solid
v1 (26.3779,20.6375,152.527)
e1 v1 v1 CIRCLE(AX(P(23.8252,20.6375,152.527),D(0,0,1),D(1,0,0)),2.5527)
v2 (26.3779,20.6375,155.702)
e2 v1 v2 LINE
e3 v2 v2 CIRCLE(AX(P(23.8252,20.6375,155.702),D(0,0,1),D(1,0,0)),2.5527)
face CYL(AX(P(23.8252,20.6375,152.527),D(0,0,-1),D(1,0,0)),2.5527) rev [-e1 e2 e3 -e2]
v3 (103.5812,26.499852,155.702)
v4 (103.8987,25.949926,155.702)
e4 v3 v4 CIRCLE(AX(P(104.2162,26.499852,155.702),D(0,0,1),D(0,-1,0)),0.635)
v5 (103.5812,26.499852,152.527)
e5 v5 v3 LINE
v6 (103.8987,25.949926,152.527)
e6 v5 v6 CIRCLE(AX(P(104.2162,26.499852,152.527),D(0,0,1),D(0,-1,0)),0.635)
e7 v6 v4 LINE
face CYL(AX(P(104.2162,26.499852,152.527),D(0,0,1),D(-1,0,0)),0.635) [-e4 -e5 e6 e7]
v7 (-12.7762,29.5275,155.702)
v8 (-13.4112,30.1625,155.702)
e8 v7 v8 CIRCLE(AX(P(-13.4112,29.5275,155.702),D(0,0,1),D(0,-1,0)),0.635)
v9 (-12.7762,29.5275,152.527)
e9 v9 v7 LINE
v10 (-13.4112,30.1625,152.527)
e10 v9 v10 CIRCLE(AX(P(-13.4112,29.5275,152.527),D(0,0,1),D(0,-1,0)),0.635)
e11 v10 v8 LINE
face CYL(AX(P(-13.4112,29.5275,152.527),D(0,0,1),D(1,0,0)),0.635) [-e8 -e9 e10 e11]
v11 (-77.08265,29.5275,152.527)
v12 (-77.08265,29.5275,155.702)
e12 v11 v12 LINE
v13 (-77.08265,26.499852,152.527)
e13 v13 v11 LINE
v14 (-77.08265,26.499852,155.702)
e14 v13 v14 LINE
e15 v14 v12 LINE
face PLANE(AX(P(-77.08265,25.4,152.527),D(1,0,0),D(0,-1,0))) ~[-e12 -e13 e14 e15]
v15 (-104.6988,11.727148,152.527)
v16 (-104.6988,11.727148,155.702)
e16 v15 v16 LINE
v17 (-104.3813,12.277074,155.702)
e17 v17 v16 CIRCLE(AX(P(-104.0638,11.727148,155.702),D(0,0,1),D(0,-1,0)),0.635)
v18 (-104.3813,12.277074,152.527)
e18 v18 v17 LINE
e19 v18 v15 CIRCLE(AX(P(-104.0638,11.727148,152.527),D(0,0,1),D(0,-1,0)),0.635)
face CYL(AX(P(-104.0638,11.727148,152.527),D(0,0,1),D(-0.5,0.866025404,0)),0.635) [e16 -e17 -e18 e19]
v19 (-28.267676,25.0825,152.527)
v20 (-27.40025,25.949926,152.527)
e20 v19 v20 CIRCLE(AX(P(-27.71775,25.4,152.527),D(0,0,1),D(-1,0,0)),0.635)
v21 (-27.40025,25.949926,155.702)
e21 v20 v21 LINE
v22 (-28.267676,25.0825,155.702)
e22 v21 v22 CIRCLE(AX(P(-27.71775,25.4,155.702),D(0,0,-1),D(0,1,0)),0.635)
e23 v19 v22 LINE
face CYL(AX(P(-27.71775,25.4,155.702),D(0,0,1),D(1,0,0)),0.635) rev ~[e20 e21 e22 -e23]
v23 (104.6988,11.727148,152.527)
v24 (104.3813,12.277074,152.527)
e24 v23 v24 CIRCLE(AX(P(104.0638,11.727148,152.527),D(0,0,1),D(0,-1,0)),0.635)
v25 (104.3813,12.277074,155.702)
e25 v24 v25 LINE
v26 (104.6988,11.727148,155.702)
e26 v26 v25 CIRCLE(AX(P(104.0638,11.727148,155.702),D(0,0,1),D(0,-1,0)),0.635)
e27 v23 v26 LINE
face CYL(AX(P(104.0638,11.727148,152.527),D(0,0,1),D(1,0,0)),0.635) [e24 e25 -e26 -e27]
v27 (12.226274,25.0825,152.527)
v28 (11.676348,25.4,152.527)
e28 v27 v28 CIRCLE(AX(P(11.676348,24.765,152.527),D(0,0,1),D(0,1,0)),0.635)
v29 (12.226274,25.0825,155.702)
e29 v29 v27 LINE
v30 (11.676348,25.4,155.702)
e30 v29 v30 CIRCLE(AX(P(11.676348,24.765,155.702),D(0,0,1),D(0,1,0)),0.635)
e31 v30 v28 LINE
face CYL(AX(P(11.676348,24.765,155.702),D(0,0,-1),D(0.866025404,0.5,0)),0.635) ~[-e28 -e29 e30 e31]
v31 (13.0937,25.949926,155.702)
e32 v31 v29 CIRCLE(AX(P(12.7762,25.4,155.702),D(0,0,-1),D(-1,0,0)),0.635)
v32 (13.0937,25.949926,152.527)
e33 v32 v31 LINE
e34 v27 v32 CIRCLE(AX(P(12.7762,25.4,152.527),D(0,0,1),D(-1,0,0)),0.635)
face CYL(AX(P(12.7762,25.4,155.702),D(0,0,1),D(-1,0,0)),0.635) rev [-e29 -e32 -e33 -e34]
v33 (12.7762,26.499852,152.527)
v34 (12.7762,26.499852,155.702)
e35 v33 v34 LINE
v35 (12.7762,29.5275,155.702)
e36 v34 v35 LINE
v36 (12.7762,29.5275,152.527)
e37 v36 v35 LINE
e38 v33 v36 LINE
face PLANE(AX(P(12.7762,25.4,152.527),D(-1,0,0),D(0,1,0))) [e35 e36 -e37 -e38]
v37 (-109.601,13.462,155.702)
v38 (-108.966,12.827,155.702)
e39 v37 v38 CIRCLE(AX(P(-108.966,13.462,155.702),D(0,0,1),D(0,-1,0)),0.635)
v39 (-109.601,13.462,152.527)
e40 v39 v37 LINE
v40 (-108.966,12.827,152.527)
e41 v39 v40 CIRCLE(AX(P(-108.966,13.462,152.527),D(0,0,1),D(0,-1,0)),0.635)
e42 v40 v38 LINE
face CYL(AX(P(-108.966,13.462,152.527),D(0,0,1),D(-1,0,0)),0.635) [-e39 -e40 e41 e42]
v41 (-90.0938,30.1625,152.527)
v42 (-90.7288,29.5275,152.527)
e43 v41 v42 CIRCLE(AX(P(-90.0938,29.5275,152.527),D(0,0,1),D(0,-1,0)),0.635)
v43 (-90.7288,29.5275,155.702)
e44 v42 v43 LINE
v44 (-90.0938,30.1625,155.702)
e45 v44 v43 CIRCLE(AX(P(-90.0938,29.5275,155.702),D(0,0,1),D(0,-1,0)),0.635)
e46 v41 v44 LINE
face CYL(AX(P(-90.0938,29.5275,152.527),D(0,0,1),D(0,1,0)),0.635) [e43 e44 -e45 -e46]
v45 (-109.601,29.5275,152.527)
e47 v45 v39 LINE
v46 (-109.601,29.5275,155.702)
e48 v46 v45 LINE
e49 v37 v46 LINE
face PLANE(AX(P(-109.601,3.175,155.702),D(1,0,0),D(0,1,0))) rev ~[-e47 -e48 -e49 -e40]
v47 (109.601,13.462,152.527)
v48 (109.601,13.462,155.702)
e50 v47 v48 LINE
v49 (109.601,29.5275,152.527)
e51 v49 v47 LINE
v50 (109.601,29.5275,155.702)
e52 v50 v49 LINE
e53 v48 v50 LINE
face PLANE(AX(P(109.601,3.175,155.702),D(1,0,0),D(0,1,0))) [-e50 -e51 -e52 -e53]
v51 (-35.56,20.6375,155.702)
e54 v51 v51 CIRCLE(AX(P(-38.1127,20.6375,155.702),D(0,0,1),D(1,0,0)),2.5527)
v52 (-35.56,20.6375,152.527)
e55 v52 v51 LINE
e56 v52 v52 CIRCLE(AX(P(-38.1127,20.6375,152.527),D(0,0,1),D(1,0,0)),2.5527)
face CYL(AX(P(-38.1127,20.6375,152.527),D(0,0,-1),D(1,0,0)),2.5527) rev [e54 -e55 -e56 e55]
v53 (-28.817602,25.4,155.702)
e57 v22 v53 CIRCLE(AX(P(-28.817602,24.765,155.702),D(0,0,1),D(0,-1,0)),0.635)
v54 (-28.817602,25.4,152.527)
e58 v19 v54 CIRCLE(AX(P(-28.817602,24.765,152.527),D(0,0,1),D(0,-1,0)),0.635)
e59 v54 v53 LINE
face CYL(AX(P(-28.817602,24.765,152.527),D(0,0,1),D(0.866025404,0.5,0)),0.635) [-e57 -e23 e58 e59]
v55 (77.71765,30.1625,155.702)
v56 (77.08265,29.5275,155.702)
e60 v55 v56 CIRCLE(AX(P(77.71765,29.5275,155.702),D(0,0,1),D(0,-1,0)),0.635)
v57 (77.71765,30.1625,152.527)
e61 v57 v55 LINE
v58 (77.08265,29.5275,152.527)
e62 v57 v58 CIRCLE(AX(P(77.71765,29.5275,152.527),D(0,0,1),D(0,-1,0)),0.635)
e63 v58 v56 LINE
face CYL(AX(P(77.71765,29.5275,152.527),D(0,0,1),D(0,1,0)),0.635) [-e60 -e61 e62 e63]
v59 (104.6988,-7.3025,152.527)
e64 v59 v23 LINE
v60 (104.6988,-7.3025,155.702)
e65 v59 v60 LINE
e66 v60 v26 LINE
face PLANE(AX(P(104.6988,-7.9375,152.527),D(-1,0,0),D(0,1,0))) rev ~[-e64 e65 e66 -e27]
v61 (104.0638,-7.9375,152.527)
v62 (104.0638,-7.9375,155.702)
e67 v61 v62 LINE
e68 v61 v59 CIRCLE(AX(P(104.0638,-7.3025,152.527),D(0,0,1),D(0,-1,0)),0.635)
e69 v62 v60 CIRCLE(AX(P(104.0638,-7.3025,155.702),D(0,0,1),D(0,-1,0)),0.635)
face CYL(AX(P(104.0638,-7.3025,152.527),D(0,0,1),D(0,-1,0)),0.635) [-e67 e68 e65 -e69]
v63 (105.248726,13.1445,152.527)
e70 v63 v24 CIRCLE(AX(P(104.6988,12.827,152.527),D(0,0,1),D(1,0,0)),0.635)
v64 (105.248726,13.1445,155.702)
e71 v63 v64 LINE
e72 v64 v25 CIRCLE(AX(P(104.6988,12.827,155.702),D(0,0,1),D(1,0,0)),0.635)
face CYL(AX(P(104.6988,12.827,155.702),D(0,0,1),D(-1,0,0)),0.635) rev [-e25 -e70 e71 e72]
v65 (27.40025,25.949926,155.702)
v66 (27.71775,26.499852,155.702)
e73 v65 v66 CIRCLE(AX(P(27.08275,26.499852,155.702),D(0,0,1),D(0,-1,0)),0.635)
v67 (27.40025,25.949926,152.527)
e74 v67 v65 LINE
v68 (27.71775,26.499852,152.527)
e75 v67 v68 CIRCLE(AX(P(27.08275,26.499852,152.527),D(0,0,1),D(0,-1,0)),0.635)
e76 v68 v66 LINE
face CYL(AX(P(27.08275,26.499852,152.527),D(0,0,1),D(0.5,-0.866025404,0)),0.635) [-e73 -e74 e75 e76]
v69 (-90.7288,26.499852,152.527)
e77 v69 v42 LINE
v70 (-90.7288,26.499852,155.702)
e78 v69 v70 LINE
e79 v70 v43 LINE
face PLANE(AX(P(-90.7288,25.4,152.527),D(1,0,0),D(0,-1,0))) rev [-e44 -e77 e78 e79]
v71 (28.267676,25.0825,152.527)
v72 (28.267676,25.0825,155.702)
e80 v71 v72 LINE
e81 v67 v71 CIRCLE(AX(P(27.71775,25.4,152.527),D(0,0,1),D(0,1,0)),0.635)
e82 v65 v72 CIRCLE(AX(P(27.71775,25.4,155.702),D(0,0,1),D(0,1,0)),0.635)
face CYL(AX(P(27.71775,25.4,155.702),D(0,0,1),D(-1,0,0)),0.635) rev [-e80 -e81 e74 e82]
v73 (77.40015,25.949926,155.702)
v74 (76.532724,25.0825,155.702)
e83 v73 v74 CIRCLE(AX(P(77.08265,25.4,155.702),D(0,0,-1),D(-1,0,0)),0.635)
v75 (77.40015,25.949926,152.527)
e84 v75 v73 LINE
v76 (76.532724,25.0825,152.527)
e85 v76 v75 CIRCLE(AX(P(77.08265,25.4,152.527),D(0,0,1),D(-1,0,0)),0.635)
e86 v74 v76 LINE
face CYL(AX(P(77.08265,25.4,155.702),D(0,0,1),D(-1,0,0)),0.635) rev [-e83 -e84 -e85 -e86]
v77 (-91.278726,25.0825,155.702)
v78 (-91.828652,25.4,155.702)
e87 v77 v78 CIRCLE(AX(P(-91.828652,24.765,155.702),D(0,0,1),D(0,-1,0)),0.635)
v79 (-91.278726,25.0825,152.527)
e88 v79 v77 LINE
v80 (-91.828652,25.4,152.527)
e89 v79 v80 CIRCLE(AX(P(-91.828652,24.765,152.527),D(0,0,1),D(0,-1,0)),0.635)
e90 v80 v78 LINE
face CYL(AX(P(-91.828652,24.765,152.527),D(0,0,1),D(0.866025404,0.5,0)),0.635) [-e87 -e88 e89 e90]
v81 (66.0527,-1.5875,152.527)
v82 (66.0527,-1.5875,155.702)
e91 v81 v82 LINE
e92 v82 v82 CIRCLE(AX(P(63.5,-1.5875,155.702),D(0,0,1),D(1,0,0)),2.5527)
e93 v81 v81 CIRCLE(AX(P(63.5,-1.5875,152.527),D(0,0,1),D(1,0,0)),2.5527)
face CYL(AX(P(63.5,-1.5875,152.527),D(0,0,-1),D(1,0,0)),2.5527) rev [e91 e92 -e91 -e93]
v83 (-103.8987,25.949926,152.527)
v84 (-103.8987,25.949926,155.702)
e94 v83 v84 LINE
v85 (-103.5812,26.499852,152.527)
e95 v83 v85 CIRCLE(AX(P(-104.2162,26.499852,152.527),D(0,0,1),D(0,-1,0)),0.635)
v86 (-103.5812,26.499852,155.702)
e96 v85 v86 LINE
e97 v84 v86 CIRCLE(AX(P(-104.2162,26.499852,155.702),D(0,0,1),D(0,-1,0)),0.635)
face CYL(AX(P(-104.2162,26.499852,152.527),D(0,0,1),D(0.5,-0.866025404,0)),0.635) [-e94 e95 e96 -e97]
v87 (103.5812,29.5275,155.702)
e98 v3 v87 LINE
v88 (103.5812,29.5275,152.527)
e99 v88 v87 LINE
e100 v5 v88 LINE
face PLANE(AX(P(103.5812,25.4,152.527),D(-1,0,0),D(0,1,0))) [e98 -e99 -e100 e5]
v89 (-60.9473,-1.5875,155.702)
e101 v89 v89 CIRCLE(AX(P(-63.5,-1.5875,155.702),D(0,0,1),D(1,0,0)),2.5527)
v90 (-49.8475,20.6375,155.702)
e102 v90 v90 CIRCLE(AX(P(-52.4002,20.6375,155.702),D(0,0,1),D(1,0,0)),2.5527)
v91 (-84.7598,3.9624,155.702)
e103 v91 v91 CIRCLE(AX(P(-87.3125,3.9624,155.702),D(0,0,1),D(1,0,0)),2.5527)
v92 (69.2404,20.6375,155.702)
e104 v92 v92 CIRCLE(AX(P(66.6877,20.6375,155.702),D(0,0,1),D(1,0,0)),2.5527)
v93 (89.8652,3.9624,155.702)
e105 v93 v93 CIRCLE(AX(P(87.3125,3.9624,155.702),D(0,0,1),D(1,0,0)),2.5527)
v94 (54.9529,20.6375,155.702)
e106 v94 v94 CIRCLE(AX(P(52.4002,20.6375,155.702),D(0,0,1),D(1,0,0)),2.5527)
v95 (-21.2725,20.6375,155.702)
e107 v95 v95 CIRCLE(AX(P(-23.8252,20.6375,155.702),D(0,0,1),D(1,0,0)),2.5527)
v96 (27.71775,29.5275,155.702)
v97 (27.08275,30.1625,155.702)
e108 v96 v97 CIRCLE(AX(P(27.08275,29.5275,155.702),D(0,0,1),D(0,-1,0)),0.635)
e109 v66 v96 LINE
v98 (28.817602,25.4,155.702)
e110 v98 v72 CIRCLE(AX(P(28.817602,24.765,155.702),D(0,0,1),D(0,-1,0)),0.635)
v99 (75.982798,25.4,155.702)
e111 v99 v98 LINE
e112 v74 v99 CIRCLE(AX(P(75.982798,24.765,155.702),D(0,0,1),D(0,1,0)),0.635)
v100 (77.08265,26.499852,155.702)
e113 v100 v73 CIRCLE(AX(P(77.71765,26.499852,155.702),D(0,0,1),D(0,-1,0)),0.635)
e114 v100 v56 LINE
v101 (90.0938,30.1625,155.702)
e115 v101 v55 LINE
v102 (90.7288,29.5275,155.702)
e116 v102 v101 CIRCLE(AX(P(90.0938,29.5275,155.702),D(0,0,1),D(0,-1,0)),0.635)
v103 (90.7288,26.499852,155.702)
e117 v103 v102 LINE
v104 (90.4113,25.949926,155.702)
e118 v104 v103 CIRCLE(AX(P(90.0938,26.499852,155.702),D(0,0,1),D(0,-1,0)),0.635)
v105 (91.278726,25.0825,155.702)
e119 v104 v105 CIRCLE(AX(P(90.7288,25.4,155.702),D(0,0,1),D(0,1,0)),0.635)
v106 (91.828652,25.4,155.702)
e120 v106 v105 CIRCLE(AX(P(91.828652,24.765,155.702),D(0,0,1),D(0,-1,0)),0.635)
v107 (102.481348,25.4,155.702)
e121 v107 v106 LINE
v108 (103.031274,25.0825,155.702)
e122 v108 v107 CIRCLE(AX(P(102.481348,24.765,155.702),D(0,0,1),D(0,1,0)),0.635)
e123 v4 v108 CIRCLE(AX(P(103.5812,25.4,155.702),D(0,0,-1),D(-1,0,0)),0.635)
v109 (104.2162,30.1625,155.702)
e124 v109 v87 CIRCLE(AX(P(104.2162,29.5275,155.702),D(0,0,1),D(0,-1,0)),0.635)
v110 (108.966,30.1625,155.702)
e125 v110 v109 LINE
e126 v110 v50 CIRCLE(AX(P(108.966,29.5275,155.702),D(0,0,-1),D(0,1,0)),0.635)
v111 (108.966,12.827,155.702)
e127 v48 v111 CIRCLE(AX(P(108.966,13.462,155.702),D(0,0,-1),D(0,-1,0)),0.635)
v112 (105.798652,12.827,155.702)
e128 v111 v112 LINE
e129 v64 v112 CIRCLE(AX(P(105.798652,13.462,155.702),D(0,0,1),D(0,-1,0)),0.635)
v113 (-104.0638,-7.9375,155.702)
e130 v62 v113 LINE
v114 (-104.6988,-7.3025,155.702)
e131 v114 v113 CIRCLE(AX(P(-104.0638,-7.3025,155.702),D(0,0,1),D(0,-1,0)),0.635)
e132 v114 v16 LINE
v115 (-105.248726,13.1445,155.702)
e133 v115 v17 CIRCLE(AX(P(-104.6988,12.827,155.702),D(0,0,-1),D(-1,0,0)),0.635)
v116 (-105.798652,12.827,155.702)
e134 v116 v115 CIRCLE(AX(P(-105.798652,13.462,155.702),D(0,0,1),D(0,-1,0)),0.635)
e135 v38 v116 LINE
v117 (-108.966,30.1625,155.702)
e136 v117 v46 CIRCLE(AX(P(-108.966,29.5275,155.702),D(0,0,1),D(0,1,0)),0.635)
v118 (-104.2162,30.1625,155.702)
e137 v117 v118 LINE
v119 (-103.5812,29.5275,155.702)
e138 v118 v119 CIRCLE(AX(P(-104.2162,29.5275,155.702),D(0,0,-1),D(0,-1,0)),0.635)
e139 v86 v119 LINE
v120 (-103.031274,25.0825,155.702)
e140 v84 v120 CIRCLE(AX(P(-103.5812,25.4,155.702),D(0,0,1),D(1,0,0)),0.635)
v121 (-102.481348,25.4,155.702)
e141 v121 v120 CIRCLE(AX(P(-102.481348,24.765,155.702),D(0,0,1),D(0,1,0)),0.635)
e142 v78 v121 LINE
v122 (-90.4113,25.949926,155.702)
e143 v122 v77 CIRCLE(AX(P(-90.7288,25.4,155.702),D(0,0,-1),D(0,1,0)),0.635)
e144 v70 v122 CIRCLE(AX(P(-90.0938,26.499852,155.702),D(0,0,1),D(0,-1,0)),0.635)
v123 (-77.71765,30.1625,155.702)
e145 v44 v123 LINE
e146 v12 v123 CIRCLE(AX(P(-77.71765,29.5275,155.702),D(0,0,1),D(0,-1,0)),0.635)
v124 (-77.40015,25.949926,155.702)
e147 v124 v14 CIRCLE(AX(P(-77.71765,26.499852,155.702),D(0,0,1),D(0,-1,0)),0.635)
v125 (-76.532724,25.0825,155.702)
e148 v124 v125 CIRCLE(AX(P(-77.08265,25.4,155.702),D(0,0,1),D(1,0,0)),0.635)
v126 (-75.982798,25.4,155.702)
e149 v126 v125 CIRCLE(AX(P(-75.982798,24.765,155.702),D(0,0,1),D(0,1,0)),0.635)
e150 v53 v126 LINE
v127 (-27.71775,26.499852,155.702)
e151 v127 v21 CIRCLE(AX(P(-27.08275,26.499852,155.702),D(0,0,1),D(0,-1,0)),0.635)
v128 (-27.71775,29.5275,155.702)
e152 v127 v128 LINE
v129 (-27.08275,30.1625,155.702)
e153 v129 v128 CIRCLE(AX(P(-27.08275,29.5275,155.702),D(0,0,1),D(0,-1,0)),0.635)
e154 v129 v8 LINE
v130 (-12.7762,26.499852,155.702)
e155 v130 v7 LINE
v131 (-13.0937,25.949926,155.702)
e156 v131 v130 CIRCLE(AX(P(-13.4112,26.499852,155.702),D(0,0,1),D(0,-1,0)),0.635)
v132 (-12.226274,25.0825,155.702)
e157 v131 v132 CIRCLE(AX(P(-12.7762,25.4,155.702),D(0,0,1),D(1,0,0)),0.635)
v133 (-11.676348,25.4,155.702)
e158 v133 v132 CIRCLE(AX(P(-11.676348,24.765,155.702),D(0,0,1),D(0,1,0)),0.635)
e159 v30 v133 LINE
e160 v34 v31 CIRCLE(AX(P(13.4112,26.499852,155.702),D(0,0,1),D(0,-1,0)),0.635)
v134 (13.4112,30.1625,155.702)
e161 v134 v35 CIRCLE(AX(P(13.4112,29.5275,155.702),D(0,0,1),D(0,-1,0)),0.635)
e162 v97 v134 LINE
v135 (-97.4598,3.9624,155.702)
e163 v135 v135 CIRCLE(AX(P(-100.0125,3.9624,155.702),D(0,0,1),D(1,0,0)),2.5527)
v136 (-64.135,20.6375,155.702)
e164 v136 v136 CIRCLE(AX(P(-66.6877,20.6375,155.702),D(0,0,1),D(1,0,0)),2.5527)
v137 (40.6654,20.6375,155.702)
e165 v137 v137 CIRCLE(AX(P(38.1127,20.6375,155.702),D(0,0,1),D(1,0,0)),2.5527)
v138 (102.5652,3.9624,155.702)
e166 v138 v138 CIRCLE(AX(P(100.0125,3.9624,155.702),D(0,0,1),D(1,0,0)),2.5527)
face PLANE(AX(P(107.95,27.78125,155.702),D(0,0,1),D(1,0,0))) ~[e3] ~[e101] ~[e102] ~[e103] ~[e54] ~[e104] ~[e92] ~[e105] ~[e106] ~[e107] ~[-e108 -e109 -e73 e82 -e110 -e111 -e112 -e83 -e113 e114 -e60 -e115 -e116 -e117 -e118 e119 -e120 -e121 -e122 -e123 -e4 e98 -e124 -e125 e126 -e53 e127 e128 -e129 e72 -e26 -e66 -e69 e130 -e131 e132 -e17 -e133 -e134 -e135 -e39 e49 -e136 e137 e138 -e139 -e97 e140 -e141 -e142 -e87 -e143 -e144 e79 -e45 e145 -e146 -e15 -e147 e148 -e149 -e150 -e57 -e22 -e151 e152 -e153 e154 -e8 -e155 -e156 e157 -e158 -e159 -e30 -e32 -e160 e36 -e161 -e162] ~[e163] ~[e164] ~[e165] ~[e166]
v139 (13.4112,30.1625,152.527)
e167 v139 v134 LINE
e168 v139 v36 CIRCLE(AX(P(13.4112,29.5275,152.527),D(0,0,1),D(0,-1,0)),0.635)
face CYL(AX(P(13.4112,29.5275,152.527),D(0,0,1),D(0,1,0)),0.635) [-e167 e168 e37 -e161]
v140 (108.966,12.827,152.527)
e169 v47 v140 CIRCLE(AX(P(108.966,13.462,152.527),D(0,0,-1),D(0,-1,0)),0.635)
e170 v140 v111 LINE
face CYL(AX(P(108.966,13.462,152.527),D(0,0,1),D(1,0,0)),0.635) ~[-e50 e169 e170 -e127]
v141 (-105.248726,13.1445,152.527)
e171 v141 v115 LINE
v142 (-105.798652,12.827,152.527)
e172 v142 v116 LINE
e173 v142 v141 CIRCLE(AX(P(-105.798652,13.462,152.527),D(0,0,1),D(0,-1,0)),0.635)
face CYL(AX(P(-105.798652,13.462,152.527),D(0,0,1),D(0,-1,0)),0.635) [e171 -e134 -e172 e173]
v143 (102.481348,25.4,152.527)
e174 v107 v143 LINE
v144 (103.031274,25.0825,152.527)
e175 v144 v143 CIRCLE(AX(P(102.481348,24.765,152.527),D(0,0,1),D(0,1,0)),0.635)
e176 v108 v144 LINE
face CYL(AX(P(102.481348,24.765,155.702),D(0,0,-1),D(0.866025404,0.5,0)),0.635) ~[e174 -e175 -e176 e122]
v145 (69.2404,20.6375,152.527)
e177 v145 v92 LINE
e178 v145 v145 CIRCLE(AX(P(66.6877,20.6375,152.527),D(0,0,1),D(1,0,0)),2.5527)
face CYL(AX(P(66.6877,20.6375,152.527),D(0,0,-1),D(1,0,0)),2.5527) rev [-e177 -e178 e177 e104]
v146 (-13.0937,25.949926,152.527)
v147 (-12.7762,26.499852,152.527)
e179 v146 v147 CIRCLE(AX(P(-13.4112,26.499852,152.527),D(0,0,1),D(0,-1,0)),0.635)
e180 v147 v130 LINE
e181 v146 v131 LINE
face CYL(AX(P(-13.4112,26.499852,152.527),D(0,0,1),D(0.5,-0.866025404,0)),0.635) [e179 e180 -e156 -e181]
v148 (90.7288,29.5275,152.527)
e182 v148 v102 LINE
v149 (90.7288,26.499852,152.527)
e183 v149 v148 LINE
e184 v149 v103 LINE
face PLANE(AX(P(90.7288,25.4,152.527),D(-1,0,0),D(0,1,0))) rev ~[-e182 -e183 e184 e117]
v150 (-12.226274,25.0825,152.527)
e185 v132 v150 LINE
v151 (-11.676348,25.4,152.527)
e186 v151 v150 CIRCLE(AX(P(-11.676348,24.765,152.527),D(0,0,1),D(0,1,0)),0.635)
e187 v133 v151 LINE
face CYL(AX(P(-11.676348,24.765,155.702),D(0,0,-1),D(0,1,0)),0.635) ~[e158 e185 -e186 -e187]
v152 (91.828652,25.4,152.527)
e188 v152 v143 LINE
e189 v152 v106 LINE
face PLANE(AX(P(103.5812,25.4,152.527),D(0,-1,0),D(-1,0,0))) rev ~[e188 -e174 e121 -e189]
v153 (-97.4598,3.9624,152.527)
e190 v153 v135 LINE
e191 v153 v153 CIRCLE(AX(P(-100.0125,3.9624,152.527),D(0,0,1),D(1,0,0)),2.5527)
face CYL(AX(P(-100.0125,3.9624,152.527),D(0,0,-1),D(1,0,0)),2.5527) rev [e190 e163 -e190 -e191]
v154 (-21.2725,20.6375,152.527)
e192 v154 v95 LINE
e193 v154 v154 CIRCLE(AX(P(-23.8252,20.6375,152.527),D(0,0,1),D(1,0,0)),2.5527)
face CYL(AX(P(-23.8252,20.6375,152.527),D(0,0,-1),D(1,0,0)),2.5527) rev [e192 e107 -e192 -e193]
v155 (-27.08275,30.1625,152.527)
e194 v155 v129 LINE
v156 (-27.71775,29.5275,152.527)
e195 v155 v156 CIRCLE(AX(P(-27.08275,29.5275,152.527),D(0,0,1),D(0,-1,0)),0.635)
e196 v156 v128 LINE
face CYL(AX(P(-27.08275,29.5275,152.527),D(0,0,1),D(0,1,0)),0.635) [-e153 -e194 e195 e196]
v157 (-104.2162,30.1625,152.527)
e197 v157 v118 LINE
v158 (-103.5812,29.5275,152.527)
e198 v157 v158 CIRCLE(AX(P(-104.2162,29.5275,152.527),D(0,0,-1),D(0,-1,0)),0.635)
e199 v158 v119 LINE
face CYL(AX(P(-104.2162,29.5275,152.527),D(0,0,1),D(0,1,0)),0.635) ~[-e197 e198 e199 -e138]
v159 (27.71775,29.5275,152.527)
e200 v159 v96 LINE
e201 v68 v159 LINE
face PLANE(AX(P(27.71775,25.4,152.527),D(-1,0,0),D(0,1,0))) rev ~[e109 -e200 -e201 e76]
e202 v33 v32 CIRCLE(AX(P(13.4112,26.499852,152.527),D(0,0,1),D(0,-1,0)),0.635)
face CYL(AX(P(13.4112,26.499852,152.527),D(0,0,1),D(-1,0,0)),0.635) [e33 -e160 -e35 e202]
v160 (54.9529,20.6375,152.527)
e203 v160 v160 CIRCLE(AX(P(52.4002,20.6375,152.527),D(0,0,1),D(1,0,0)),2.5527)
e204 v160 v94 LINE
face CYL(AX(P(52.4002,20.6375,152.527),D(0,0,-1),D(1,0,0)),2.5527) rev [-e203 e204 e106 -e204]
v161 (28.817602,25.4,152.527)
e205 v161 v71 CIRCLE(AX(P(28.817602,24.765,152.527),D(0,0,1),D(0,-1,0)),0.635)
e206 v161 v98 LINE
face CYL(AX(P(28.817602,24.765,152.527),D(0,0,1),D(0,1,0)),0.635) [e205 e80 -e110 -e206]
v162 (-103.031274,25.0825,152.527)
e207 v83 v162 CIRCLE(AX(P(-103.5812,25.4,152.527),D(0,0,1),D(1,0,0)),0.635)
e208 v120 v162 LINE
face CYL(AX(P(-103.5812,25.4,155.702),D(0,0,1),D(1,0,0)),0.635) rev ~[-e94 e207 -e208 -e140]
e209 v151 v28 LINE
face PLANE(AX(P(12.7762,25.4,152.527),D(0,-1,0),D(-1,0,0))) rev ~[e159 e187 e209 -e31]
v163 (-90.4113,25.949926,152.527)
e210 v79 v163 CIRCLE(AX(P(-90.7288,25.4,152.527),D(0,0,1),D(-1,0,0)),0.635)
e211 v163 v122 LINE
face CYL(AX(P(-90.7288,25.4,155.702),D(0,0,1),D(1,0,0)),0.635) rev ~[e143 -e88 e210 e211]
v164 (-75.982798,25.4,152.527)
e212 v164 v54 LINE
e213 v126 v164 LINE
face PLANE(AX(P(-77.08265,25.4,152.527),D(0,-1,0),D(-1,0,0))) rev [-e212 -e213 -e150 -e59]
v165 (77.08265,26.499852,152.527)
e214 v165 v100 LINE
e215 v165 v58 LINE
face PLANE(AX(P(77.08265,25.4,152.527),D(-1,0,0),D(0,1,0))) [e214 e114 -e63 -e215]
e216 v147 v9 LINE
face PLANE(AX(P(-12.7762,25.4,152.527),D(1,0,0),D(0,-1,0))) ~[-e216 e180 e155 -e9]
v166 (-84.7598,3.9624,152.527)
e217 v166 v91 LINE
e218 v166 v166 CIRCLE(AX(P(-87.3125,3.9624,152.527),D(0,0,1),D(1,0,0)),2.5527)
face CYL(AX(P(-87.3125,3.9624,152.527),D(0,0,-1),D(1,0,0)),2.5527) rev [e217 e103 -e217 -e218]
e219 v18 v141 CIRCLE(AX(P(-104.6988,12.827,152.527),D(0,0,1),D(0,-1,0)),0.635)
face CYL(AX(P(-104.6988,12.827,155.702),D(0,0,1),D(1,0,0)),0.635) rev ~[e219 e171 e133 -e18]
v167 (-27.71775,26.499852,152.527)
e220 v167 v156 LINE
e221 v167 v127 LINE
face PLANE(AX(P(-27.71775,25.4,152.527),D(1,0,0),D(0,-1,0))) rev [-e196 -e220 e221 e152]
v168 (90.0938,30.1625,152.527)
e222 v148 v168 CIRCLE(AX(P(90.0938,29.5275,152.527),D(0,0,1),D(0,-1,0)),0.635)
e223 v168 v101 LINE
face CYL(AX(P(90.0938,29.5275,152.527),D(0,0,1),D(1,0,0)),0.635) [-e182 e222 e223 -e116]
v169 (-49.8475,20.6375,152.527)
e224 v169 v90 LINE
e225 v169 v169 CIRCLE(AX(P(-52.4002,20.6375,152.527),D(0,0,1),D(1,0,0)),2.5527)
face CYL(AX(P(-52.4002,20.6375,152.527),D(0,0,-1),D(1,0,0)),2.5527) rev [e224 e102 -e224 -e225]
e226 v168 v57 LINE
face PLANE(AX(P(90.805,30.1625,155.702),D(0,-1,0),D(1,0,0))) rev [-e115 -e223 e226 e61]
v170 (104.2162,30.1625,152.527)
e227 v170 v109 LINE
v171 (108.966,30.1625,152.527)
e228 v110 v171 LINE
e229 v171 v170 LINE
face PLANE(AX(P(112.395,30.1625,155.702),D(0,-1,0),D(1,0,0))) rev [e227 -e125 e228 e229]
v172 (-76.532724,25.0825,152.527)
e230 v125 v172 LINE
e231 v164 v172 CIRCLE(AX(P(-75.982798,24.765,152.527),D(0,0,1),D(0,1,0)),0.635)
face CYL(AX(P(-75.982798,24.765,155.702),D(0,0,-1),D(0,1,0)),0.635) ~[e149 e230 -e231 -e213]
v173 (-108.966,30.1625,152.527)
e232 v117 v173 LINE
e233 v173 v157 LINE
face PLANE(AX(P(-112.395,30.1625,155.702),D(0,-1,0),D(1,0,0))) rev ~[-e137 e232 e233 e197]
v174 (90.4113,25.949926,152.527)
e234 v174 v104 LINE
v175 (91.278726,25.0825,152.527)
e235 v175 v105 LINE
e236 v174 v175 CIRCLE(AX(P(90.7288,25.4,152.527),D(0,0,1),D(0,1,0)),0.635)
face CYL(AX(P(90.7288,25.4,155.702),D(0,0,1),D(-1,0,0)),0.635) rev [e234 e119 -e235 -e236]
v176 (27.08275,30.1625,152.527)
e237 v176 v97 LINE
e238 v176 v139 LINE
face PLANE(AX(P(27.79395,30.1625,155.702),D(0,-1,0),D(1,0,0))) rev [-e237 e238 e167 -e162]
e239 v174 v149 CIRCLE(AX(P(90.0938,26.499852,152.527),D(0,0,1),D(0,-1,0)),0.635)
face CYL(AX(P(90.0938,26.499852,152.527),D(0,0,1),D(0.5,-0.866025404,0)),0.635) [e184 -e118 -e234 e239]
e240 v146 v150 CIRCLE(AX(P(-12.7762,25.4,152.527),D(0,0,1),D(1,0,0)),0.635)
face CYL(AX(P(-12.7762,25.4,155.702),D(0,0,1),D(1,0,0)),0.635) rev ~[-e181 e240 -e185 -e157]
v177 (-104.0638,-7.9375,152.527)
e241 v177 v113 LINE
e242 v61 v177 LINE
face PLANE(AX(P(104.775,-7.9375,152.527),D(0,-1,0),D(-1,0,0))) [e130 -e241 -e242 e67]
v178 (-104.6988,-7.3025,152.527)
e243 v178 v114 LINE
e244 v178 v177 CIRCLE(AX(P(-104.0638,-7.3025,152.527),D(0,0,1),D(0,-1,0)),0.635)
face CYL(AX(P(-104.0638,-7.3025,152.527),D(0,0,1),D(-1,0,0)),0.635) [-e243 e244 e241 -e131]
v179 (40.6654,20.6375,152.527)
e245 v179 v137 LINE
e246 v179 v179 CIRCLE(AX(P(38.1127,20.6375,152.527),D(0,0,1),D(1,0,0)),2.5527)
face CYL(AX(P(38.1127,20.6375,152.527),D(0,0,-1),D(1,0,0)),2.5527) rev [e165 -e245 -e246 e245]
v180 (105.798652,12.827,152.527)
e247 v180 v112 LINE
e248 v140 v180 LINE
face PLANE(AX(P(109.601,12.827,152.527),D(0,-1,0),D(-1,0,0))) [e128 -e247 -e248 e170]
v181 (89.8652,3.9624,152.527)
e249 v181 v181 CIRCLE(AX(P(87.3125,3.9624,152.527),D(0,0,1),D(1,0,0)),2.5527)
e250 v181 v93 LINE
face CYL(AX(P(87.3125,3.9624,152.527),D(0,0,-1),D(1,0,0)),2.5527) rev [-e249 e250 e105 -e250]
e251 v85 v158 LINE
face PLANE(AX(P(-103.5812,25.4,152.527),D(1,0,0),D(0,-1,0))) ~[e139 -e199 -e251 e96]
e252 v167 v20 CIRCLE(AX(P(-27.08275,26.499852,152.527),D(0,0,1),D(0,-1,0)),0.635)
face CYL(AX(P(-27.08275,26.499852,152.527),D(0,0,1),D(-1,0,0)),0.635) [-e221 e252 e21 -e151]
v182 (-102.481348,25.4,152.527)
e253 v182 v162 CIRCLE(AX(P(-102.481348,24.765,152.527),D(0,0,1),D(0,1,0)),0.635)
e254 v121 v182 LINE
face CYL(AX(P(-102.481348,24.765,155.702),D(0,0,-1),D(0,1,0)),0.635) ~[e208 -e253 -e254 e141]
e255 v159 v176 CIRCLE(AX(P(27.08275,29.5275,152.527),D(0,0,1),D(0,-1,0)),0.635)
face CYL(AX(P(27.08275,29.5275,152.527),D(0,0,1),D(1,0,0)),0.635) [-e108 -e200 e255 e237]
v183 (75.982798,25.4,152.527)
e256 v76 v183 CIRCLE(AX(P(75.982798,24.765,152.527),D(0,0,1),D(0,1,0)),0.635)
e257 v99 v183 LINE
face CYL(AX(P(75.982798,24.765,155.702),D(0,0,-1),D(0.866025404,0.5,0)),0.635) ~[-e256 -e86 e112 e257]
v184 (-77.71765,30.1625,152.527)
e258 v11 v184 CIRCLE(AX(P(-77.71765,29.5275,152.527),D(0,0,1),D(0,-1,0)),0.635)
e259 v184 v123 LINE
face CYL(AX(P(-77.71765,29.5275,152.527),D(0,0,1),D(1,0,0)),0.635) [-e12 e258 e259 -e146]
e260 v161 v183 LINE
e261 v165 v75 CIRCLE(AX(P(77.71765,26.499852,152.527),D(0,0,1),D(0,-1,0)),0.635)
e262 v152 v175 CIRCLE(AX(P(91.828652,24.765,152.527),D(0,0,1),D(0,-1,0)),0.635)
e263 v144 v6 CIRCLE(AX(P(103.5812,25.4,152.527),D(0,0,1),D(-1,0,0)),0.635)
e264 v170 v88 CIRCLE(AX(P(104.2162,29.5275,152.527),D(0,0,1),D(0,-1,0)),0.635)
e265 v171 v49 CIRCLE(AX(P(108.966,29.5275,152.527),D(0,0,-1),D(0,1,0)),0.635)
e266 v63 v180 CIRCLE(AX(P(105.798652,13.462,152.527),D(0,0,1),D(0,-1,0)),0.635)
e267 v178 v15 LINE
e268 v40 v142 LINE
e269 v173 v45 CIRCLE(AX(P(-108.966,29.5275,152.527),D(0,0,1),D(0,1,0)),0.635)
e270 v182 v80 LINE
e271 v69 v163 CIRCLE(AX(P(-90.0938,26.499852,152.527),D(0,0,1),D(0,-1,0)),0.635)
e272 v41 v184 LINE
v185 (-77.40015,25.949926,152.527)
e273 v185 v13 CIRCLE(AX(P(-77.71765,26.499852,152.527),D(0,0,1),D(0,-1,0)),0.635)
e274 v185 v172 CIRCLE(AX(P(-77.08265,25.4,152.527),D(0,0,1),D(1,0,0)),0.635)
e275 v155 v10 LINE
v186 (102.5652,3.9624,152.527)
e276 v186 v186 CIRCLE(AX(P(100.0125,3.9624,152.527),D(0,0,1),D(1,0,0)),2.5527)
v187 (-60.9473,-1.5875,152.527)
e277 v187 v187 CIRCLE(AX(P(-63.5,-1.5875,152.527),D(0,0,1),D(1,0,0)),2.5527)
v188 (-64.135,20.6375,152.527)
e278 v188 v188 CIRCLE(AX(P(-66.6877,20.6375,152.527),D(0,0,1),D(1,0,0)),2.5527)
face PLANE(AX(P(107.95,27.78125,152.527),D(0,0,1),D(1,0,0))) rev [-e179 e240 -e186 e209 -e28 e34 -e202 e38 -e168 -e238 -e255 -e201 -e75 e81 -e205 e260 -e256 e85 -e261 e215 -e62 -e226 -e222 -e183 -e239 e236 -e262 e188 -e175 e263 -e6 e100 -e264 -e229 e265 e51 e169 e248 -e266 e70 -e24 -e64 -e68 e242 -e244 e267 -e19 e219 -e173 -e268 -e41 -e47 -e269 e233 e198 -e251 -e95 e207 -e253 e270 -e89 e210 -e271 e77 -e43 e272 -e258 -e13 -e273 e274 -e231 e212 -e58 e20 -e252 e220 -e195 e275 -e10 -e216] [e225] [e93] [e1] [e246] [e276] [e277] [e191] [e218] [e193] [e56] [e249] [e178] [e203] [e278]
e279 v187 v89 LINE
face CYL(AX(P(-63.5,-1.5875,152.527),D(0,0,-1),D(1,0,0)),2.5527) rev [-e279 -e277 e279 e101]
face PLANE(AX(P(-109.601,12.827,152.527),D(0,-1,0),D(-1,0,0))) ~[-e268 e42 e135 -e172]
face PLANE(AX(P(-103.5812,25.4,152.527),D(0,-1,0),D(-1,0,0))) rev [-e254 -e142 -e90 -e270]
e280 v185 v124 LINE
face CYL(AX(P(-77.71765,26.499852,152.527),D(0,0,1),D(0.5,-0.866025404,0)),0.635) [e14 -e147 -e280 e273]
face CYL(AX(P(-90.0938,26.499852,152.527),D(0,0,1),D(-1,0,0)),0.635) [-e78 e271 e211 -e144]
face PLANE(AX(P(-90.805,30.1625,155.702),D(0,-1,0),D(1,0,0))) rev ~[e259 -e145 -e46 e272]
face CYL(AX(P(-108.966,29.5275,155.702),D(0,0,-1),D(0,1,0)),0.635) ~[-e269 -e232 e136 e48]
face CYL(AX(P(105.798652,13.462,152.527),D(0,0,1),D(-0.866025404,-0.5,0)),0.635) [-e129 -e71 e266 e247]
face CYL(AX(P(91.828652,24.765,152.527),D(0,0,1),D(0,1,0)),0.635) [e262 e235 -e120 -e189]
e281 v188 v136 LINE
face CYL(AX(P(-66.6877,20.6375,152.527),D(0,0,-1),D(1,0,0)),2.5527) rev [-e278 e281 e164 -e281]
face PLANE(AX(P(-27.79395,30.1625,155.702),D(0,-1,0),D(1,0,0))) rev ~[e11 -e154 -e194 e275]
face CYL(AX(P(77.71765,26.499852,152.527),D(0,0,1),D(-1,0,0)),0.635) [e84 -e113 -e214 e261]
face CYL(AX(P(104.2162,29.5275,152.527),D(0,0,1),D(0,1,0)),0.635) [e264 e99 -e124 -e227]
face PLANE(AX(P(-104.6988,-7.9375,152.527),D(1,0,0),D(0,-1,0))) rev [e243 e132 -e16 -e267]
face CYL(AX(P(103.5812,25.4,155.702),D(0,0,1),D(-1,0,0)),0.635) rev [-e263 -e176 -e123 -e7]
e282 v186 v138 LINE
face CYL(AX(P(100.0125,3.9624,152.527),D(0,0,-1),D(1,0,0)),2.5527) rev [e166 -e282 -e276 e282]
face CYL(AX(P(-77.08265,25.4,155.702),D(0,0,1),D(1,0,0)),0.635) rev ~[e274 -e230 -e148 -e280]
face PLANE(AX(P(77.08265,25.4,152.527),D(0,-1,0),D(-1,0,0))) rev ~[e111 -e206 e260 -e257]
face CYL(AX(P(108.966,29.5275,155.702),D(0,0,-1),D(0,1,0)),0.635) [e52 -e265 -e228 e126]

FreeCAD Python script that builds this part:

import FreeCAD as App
import Part
import Sketcher
from FreeCAD import Vector
Q = App.Units.Quantity


def edges_at(feature, points):
    """Names of the edges that pass closest to the given points."""
    edges = feature.Shape.Edges
    near = lambda p: min(range(len(edges)), key=lambda i: edges[i].distToShape(Part.Vertex(*p))[0])
    return sorted({f"Edge{near(p) + 1}" for p in points})

doc = App.newDocument("Part")
body = doc.addObject("PartDesign::Body", "Body")

sketch1 = body.newObject("Sketcher::SketchObject", "Sketch")
sketch1.AttachmentSupport = (doc.getObject("XY_Plane"), [""])
sketch1.MapMode = "FlatFace"
sketch1.AttachmentOffset = App.Placement(Vector(0, 0, 6.005 * 25.4), App.Rotation())
sketch1.addGeometry([
    Part.LineSegment(Vector(-104.8, 12.7, 0), Vector(-104.8, -7.9, 0)),
    Part.LineSegment(Vector(-104.8, -7.9, 0), Vector(104.8, -7.9, 0)),
    Part.LineSegment(Vector(104.8, -7.9, 0), Vector(104.8, 12.7, 0)),
    Part.LineSegment(Vector(104.8, 12.7, 0), Vector(109.5, 12.7, 0)),
    Part.LineSegment(Vector(109.5, 12.7, 0), Vector(109.5, 3.2, 0)),
    Part.LineSegment(Vector(109.5, 3.2, 0), Vector(112.4, 3.2, 0)),
    Part.LineSegment(Vector(112.4, 3.2, 0), Vector(112.4, 25.4, 0)),
    Part.LineSegment(Vector(112.4, 25.4, 0), Vector(-112.4, 25.4, 0)),
    Part.LineSegment(Vector(-112.4, 25.4, 0), Vector(-112.4, 3.2, 0)),
    Part.LineSegment(Vector(-112.4, 3.2, 0), Vector(-109.5, 3.2, 0)),
    Part.LineSegment(Vector(-109.5, 3.2, 0), Vector(-109.5, 12.7, 0)),
    Part.LineSegment(Vector(-109.5, 12.7, 0), Vector(-104.8, 12.7, 0)),
    Part.Circle(Vector(63.5, -1.6, 0), Vector(0, 0, 1), 2.6),
    Part.Circle(Vector(100, 4, 0), Vector(0, 0, 1), 2.6),
    Part.Circle(Vector(87.3, 4, 0), Vector(0, 0, 1), 2.6),
    Part.Circle(Vector(-63.5, -1.6, 0), Vector(0, 0, 1), 2.6),
    Part.Circle(Vector(-87.3, 4, 0), Vector(0, 0, 1), 2.6),
    Part.Circle(Vector(-100, 4, 0), Vector(0, 0, 1), 2.6),
    Part.Circle(Vector(66.7, 20.6, 0), Vector(0, 0, 1), 2.6),
    Part.Circle(Vector(52.4, 20.6, 0), Vector(0, 0, 1), 2.6),
    Part.Circle(Vector(38.1, 20.6, 0), Vector(0, 0, 1), 2.6),
    Part.Circle(Vector(23.8, 20.6, 0), Vector(0, 0, 1), 2.6),
    Part.Circle(Vector(-23.8, 20.6, 0), Vector(0, 0, 1), 2.6),
    Part.Circle(Vector(-38.1, 20.6, 0), Vector(0, 0, 1), 2.6),
    Part.Circle(Vector(-52.4, 20.6, 0), Vector(0, 0, 1), 2.6),
    Part.Circle(Vector(-66.7, 20.6, 0), Vector(0, 0, 1), 2.6),
], False)
sketch1.addConstraint([
    Sketcher.Constraint("Coincident", 0, 2, 1, 1),
    Sketcher.Constraint("Coincident", 1, 2, 2, 1),
    Sketcher.Constraint("Coincident", 2, 2, 3, 1),
    Sketcher.Constraint("Coincident", 3, 2, 4, 1),
    Sketcher.Constraint("Coincident", 4, 2, 5, 1),
    Sketcher.Constraint("Coincident", 5, 2, 6, 1),
    Sketcher.Constraint("Coincident", 6, 2, 7, 1),
    Sketcher.Constraint("Coincident", 7, 2, 8, 1),
    Sketcher.Constraint("Coincident", 8, 2, 9, 1),
    Sketcher.Constraint("Coincident", 9, 2, 10, 1),
    Sketcher.Constraint("Coincident", 10, 2, 11, 1),
    Sketcher.Constraint("Coincident", 11, 2, 0, 1),
    Sketcher.Constraint("Vertical", 0),
    Sketcher.Constraint("Horizontal", 1),
    Sketcher.Constraint("Vertical", 2),
    Sketcher.Constraint("Horizontal", 3),
    Sketcher.Constraint("Vertical", 4),
    Sketcher.Constraint("Horizontal", 5),
    Sketcher.Constraint("Vertical", 6),
    Sketcher.Constraint("Horizontal", 7),
    Sketcher.Constraint("Vertical", 8),
    Sketcher.Constraint("Horizontal", 9),
    Sketcher.Constraint("Vertical", 10),
    Sketcher.Constraint("Horizontal", 11),
    Sketcher.Constraint("Equal", 12, 13),
    Sketcher.Constraint("Equal", 13, 14),
    Sketcher.Constraint("Equal", 14, 15),
    Sketcher.Constraint("Equal", 15, 16),
    Sketcher.Constraint("Equal", 16, 17),
    Sketcher.Constraint("Equal", 17, 18),
    Sketcher.Constraint("Equal", 18, 19),
    Sketcher.Constraint("Equal", 19, 20),
    Sketcher.Constraint("Equal", 20, 21),
    Sketcher.Constraint("Equal", 21, 22),
    Sketcher.Constraint("Equal", 22, 23),
    Sketcher.Constraint("Equal", 23, 24),
    Sketcher.Constraint("Equal", 24, 25),
    Sketcher.Constraint("Symmetric", 12, 3, 15, 3, -2),
    Sketcher.Constraint("Symmetric", 14, 3, 16, 3, -2),
    Sketcher.Constraint("Symmetric", 13, 3, 17, 3, -2),
    Sketcher.Constraint("Symmetric", 21, 3, 22, 3, -2),
    Sketcher.Constraint("Symmetric", 20, 3, 23, 3, -2),
    Sketcher.Constraint("Symmetric", 19, 3, 24, 3, -2),
    Sketcher.Constraint("Symmetric", 18, 3, 25, 3, -2),
    Sketcher.Constraint("Symmetric", 5, 2, 8, 2, -2),
    Sketcher.Constraint("Symmetric", 3, 2, 10, 2, -2),
    Sketcher.Constraint("Horizontal", 13, 3, 14, 3),
    Sketcher.Constraint("Horizontal", 18, 3, 19, 3),
    Sketcher.Constraint("Horizontal", 19, 3, 20, 3),
    Sketcher.Constraint("Horizontal", 20, 3, 21, 3),
    Sketcher.Constraint("Equal", 3, 11),
    Sketcher.Constraint("Diameter", 12, Q("0.201 in")),
    Sketcher.Constraint("DistanceY", -1, 1, 6, 2, Q("1 in")),
    Sketcher.Constraint("DistanceX", 15, 3, 12, 3, Q("5 in")),
    Sketcher.Constraint("DistanceX", 1, 1, 1, 2, Q("8.25 in")),
    Sketcher.Constraint("DistanceX", 7, 2, 7, 1, Q("8.85 in")),
    Sketcher.Constraint("DistanceY", -1, 1, 2, 2, Q("0.5 in")),
    Sketcher.Constraint("DistanceX", 14, 3, 13, 3, Q("0.5 in")),
    Sketcher.Constraint("DistanceX", 3, 1, 3, 2, Q("0.187 in")),
    Sketcher.Constraint("DistanceY", 0, 2, 0, 1, Q("0.8125 in")),
    Sketcher.Constraint("DistanceY", 4, 2, 4, 1, Q("0.375 in")),
    Sketcher.Constraint("DistanceY", 0, 2, 15, 3, Q("0.25 in")),
    Sketcher.Constraint("DistanceX", -1, 1, 13, 3, Q("3.9375 in")),
    Sketcher.Constraint("DistanceY", -1, 1, 13, 3, Q("0.156 in")),
    Sketcher.Constraint("DistanceY", -1, 1, 18, 3, Q("0.8125 in")),
    Sketcher.Constraint("DistanceX", -1, 1, 19, 3, Q("2.063 in")),
    Sketcher.Constraint("DistanceX", -1, 1, 21, 3, Q("0.938 in")),
    Sketcher.Constraint("DistanceX", 18, 3, 14, 3, Q("0.812 in")),
    Sketcher.Constraint("DistanceX", 20, 3, 19, 3, Q("0.5625 in")),
])
pad1 = body.newObject("PartDesign::Pad", "Pad")
pad1.Profile = sketch1
pad1.Length = Q("0.125 in")

sketch2 = body.newObject("Sketcher::SketchObject", "Sketch001")
sketch2.AttachmentSupport = (doc.getObject("XY_Plane"), [""])
sketch2.MapMode = "FlatFace"
sketch2.AttachmentOffset = App.Placement(Vector(0, 0, 6.13 * 25.4), App.Rotation())
sketch2.addGeometry([
    Part.LineSegment(Vector(-112.4, 30.2, 0), Vector(-112.4, 25.4, 0)),
    Part.LineSegment(Vector(-112.4, 25.4, 0), Vector(-103.5, 25.4, 0)),
    Part.LineSegment(Vector(-103.5, 25.4, 0), Vector(-103.5, 30.2, 0)),
    Part.LineSegment(Vector(-103.5, 30.2, 0), Vector(-112.4, 30.2, 0)),
    Part.LineSegment(Vector(-90.8, 30.2, 0), Vector(-90.8, 25.4, 0)),
    Part.LineSegment(Vector(-90.8, 25.4, 0), Vector(-77, 25.4, 0)),
    Part.LineSegment(Vector(-77, 25.4, 0), Vector(-77, 30.2, 0)),
    Part.LineSegment(Vector(-77, 30.2, 0), Vector(-90.8, 30.2, 0)),
    Part.LineSegment(Vector(-27.8, 30.2, 0), Vector(-27.8, 25.4, 0)),
    Part.LineSegment(Vector(-27.8, 25.4, 0), Vector(-12.7, 25.4, 0)),
    Part.LineSegment(Vector(-12.7, 25.4, 0), Vector(-12.7, 30.2, 0)),
    Part.LineSegment(Vector(-12.7, 30.2, 0), Vector(-27.8, 30.2, 0)),
], False)
sketch2.addConstraint([
    Sketcher.Constraint("Coincident", 0, 2, 1, 1),
    Sketcher.Constraint("Coincident", 1, 2, 2, 1),
    Sketcher.Constraint("Coincident", 2, 2, 3, 1),
    Sketcher.Constraint("Coincident", 3, 2, 0, 1),
    Sketcher.Constraint("Coincident", 4, 2, 5, 1),
    Sketcher.Constraint("Coincident", 5, 2, 6, 1),
    Sketcher.Constraint("Coincident", 6, 2, 7, 1),
    Sketcher.Constraint("Coincident", 7, 2, 4, 1),
    Sketcher.Constraint("Coincident", 8, 2, 9, 1),
    Sketcher.Constraint("Coincident", 9, 2, 10, 1),
    Sketcher.Constraint("Coincident", 10, 2, 11, 1),
    Sketcher.Constraint("Coincident", 11, 2, 8, 1),
    Sketcher.Constraint("Vertical", 0),
    Sketcher.Constraint("Horizontal", 1),
    Sketcher.Constraint("Vertical", 2),
    Sketcher.Constraint("Horizontal", 3),
    Sketcher.Constraint("Vertical", 4),
    Sketcher.Constraint("Horizontal", 5),
    Sketcher.Constraint("Vertical", 6),
    Sketcher.Constraint("Horizontal", 7),
    Sketcher.Constraint("Vertical", 8),
    Sketcher.Constraint("Horizontal", 9),
    Sketcher.Constraint("Vertical", 10),
    Sketcher.Constraint("Horizontal", 11),
    Sketcher.Constraint("Horizontal", 1, 2, 4, 2),
    Sketcher.Constraint("Horizontal", 3, 2, 6, 2),
    Sketcher.Constraint("Horizontal", 5, 2, 8, 2),
    Sketcher.Constraint("Horizontal", 7, 2, 10, 2),
    Sketcher.Constraint("DistanceY", -1, 1, 0, 2, Q("1 in")),
    Sketcher.Constraint("DistanceX", 1, 1, 1, 2, Q("0.35 in")),
    Sketcher.Constraint("DistanceX", 9, 2, -1, 1, Q("0.5 in")),
    Sketcher.Constraint("DistanceX", 1, 2, 4, 2, Q("0.5 in")),
    Sketcher.Constraint("DistanceY", 0, 2, 0, 1, Q("0.1875 in")),
    Sketcher.Constraint("DistanceX", 0, 2, -1, 1, Q("4.425 in")),
    Sketcher.Constraint("DistanceX", 5, 2, 8, 2, Q("1.9375 in")),
    Sketcher.Constraint("DistanceX", 5, 1, 5, 2, 13.79855),
])
pad2 = body.newObject("PartDesign::Pad", "Pad001")
pad2.Profile = sketch2
pad2.Length = Q("0.125 in")
pad2.Reversed = True
doc.recompute()

mirrored = body.newObject("PartDesign::Mirrored", "Mirrored")
mirrored.Originals = [pad2]
mirrored.MirrorPlane = (doc.getObject("YZ_Plane"), [""])
body.Tip = mirrored

sketch3 = body.newObject("Sketcher::SketchObject", "Sketch002")
sketch3.AttachmentSupport = (doc.getObject("XY_Plane"), [""])
sketch3.MapMode = "FlatFace"
sketch3.AttachmentOffset = App.Placement(Vector(0, 0, 6.005 * 25.4), App.Rotation())
sketch3.addGeometry([
    Part.LineSegment(Vector(109.6, 12.8, 0), Vector(109.6, -7.9, 0)),
    Part.LineSegment(Vector(109.6, -7.9, 0), Vector(104.7, -7.9, 0)),
    Part.LineSegment(Vector(104.7, -7.9, 0), Vector(104.7, 12.8, 0)),
    Part.LineSegment(Vector(104.7, 12.8, 0), Vector(109.6, 12.8, 0)),
    Part.LineSegment(Vector(103.6, 30.2, 0), Vector(103.6, 25.4, 0)),
    Part.LineSegment(Vector(103.6, 25.4, 0), Vector(90.7, 25.4, 0)),
    Part.LineSegment(Vector(90.7, 25.4, 0), Vector(90.7, 30.2, 0)),
    Part.LineSegment(Vector(90.7, 30.2, 0), Vector(103.6, 30.2, 0)),
    Part.LineSegment(Vector(77.1, 30.2, 0), Vector(77.1, 25.4, 0)),
    Part.LineSegment(Vector(77.1, 25.4, 0), Vector(27.7, 25.4, 0)),
    Part.LineSegment(Vector(27.7, 25.4, 0), Vector(27.7, 30.2, 0)),
    Part.LineSegment(Vector(27.7, 30.2, 0), Vector(77.1, 30.2, 0)),
    Part.LineSegment(Vector(12.8, 30.2, 0), Vector(12.8, 25.4, 0)),
    Part.LineSegment(Vector(12.8, 25.4, 0), Vector(0, 25.4, 0)),
    Part.LineSegment(Vector(0, 25.4, 0), Vector(0, 30.2, 0)),
    Part.LineSegment(Vector(0, 30.2, 0), Vector(12.8, 30.2, 0)),
], False)
sketch3.addConstraint([
    Sketcher.Constraint("Coincident", 0, 2, 1, 1),
    Sketcher.Constraint("Coincident", 1, 2, 2, 1),
    Sketcher.Constraint("Coincident", 2, 2, 3, 1),
    Sketcher.Constraint("Coincident", 3, 2, 0, 1),
    Sketcher.Constraint("Coincident", 4, 2, 5, 1),
    Sketcher.Constraint("Coincident", 5, 2, 6, 1),
    Sketcher.Constraint("Coincident", 6, 2, 7, 1),
    Sketcher.Constraint("Coincident", 7, 2, 4, 1),
    Sketcher.Constraint("Coincident", 8, 2, 9, 1),
    Sketcher.Constraint("Coincident", 9, 2, 10, 1),
    Sketcher.Constraint("Coincident", 10, 2, 11, 1),
    Sketcher.Constraint("Coincident", 11, 2, 8, 1),
    Sketcher.Constraint("Coincident", 12, 2, 13, 1),
    Sketcher.Constraint("Coincident", 13, 2, 14, 1),
    Sketcher.Constraint("Coincident", 14, 2, 15, 1),
    Sketcher.Constraint("Coincident", 15, 2, 12, 1),
    Sketcher.Constraint("Vertical", 0),
    Sketcher.Constraint("Horizontal", 1),
    Sketcher.Constraint("Vertical", 2),
    Sketcher.Constraint("Horizontal", 3),
    Sketcher.Constraint("Vertical", 4),
    Sketcher.Constraint("Horizontal", 5),
    Sketcher.Constraint("Vertical", 6),
    Sketcher.Constraint("Horizontal", 7),
    Sketcher.Constraint("Vertical", 8),
    Sketcher.Constraint("Horizontal", 9),
    Sketcher.Constraint("Vertical", 10),
    Sketcher.Constraint("Horizontal", 11),
    Sketcher.Constraint("Vertical", 12),
    Sketcher.Constraint("Horizontal", 13),
    Sketcher.Constraint("Vertical", 14),
    Sketcher.Constraint("Horizontal", 15),
    Sketcher.Constraint("PointOnObject", 13, 2, -2),
    Sketcher.Constraint("Horizontal", 5, 2, 8, 2),
    Sketcher.Constraint("Horizontal", 7, 2, 10, 2),
    Sketcher.Constraint("Horizontal", 9, 2, 12, 2),
    Sketcher.Constraint("Horizontal", 11, 2, 14, 2),
    Sketcher.Constraint("DistanceY", -1, 1, 4, 2, Q("1 in")),
    Sketcher.Constraint("DistanceY", 1, 2, 6, 2, Q("1.5 in")),
    Sketcher.Constraint("DistanceX", 1, 2, 1, 1, Q("0.193 in")),
    Sketcher.Constraint("DistanceX", 5, 2, 5, 1, Q("0.506 in")),
    Sketcher.Constraint("DistanceX", 13, 2, 13, 1, Q("0.503 in")),
    Sketcher.Constraint("DistanceY", 4, 2, 4, 1, Q("0.1875 in")),
    Sketcher.Constraint("DistanceX", 5, 2, 2, 2, Q("0.55 in")),
    Sketcher.Constraint("DistanceX", 9, 2, 9, 1, Q("1.9435 in")),
    Sketcher.Constraint("DistanceY", 0, 2, 0, 1, Q("0.8175 in")),
    Sketcher.Constraint("DistanceX", -1, 1, 0, 2, Q("4.315 in")),
    Sketcher.Constraint("DistanceX", -1, 1, 8, 2, 77.08265),
])
pocket1 = body.newObject("PartDesign::Pocket", "Pocket")
pocket1.Profile = sketch3
pocket1.Type = "ThroughAll"
pocket1.Reversed = True
doc.recompute()

mirrored2 = body.newObject("PartDesign::Mirrored", "Mirrored001")
mirrored2.Originals = [pocket1]
mirrored2.MirrorPlane = (doc.getObject("YZ_Plane"), [""])
body.Tip = mirrored2

sketch4 = body.newObject("Sketcher::SketchObject", "Sketch003")
sketch4.AttachmentSupport = (doc.getObject("XY_Plane"), [""])
sketch4.MapMode = "FlatFace"
sketch4.AttachmentOffset = App.Placement(Vector(0, 0, 6.13 * 25.4), App.Rotation())
sketch4.addGeometry([
    Part.LineSegment(Vector(-112.4, 30.2, 0), Vector(-112.4, 3.2, 0)),
    Part.LineSegment(Vector(-112.4, 3.2, 0), Vector(-109.6, 3.2, 0)),
    Part.LineSegment(Vector(-109.6, 3.2, 0), Vector(-109.6, 30.2, 0)),
    Part.LineSegment(Vector(-109.6, 30.2, 0), Vector(-112.4, 30.2, 0)),
    Part.LineSegment(Vector(109.6, 30.2, 0), Vector(109.6, 3.2, 0)),
    Part.LineSegment(Vector(109.6, 3.2, 0), Vector(112.4, 3.2, 0)),
    Part.LineSegment(Vector(112.4, 3.2, 0), Vector(112.4, 30.2, 0)),
    Part.LineSegment(Vector(112.4, 30.2, 0), Vector(109.6, 30.2, 0)),
], False)
sketch4.addConstraint([
    Sketcher.Constraint("Coincident", 0, 2, 1, 1),
    Sketcher.Constraint("Coincident", 1, 2, 2, 1),
    Sketcher.Constraint("Coincident", 2, 2, 3, 1),
    Sketcher.Constraint("Coincident", 3, 2, 0, 1),
    Sketcher.Constraint("Coincident", 4, 2, 5, 1),
    Sketcher.Constraint("Coincident", 5, 2, 6, 1),
    Sketcher.Constraint("Coincident", 6, 2, 7, 1),
    Sketcher.Constraint("Coincident", 7, 2, 4, 1),
    Sketcher.Constraint("Vertical", 0),
    Sketcher.Constraint("Horizontal", 1),
    Sketcher.Constraint("Vertical", 2),
    Sketcher.Constraint("Horizontal", 3),
    Sketcher.Constraint("Vertical", 4),
    Sketcher.Constraint("Horizontal", 5),
    Sketcher.Constraint("Vertical", 6),
    Sketcher.Constraint("Horizontal", 7),
    Sketcher.Constraint("Symmetric", 1, 2, 4, 2, -2),
    Sketcher.Constraint("Symmetric", 3, 2, 6, 2, -2),
    Sketcher.Constraint("DistanceX", 1, 1, 1, 2, Q("0.11 in")),
    Sketcher.Constraint("DistanceY", 0, 2, 0, 1, Q("1.0625 in")),
    Sketcher.Constraint("DistanceX", 1, 2, 4, 2, Q("8.63 in")),
    Sketcher.Constraint("DistanceY", -1, 1, 0, 2, Q("0.125 in")),
])
pocket2 = body.newObject("PartDesign::Pocket", "Pocket001")
pocket2.Profile = sketch4
pocket2.Type = "ThroughAll"
doc.recompute()

fillet = body.newObject("PartDesign::Fillet", "Fillet")
fillet.Base = (pocket2, edges_at(pocket2, [
    (104.699, -7.938, 154.114),
    (109.601, 12.827, 154.114),
    (-109.601, 12.827, 154.114),
    (-104.699, -7.938, 154.114),
    (-109.601, 30.163, 154.114),
    (109.601, 30.163, 154.114),
]))
fillet.Radius = Q("0.025 in")
doc.recompute()

fillet2 = body.newObject("PartDesign::Fillet", "Fillet001")
fillet2.Base = (fillet, edges_at(fillet, [
    (103.581, 30.163, 154.114),
    (90.729, 30.163, 154.114),
    (77.083, 30.163, 154.114),
    (27.718, 30.163, 154.114),
    (12.776, 30.163, 154.114),
    (-103.581, 30.163, 154.114),
    (-90.729, 30.163, 154.114),
    (-27.718, 30.163, 154.114),
    (-77.083, 30.163, 154.114),
    (-12.776, 30.163, 154.114),
]))
fillet2.Radius = Q("0.025 in")

sketch5 = body.newObject("Sketcher::SketchObject", "Sketch004")
sketch5.AttachmentSupport = (doc.getObject("XY_Plane"), [""])
sketch5.MapMode = "FlatFace"
sketch5.AttachmentOffset = App.Placement(Vector(0, 0, 6.13 * 25.4), App.Rotation())
sketch5.addGeometry([
    Part.Circle(Vector(-104.7, 12.8, 0), Vector(0, 0, 1), 0.6),
    Part.Circle(Vector(-103.6, 25.4, 0), Vector(0, 0, 1), 0.6),
    Part.Circle(Vector(-90.7, 25.4, 0), Vector(0, 0, 1), 0.6),
    Part.Circle(Vector(-77.1, 25.4, 0), Vector(0, 0, 1), 0.6),
    Part.Circle(Vector(-27.7, 25.4, 0), Vector(0, 0, 1), 0.6),
    Part.Circle(Vector(-12.8, 25.4, 0), Vector(0, 0, 1), 0.6),
], False)
sketch5.addConstraint([
    Sketcher.Constraint("Equal", 0, 1),
    Sketcher.Constraint("Equal", 1, 2),
    Sketcher.Constraint("Equal", 2, 3),
    Sketcher.Constraint("Equal", 3, 4),
    Sketcher.Constraint("Equal", 4, 5),
    Sketcher.Constraint("Horizontal", 1, 3, 2, 3),
    Sketcher.Constraint("Horizontal", 2, 3, 3, 3),
    Sketcher.Constraint("Horizontal", 3, 3, 4, 3),
    Sketcher.Constraint("Horizontal", 4, 3, 5, 3),
    Sketcher.Constraint("Diameter", 0, Q("0.05 in")),
    Sketcher.Constraint("DistanceY", -1, 1, 1, 3, Q("1 in")),
    Sketcher.Constraint("DistanceX", 0, 3, 2, 3, Q("0.55 in")),
    Sketcher.Constraint("DistanceX", 0, 3, -1, 1, Q("4.122 in")),
    Sketcher.Constraint("DistanceY", -1, 1, 0, 3, Q("0.505 in")),
    Sketcher.Constraint("DistanceX", 1, 3, -1, 1, Q("4.078 in")),
    Sketcher.Constraint("DistanceX", 5, 3, -1, 1, Q("0.503 in")),
    Sketcher.Constraint("DistanceX", 3, 3, 4, 3, Q("1.9435 in")),
    Sketcher.Constraint("DistanceX", 3, 3, -1, 1, 77.08265),
])
pocket3 = body.newObject("PartDesign::Pocket", "Pocket002")
pocket3.Profile = sketch5
pocket3.Type = "ThroughAll"
doc.recompute()

fillet3 = body.newObject("PartDesign::Fillet", "Fillet002")
fillet3.Base = (pocket3, edges_at(pocket3, [
    (-105.334, 12.827, 154.114),
    (-103.581, 26.035, 154.114),
    (-27.718, 26.035, 154.114),
    (-12.776, 26.035, 154.114),
    (-90.729, 26.035, 154.114),
    (-77.083, 26.035, 154.114),
    (-104.699, 12.192, 154.114),
    (-102.946, 25.4, 154.114),
    (-91.364, 25.4, 154.114),
    (-76.448, 25.4, 154.114),
    (-28.353, 25.4, 154.114),
    (-12.141, 25.4, 154.114),
]))
fillet3.Radius = Q("0.025 in")
doc.recompute()

mirrored3 = body.newObject("PartDesign::Mirrored", "Mirrored002")
mirrored3.Originals = [pocket3]
mirrored3.MirrorPlane = (doc.getObject("YZ_Plane"), [""])
body.Tip = mirrored3
doc.recompute()

fillet4 = body.newObject("PartDesign::Fillet", "Fillet003")
fillet4.Base = (mirrored3, edges_at(mirrored3, [
    (105.334, 12.827, 154.114),
    (103.581, 26.035, 154.114),
    (27.718, 26.035, 154.114),
    (12.776, 26.035, 154.114),
    (90.729, 26.035, 154.114),
    (77.083, 26.035, 154.114),
    (104.699, 12.192, 154.114),
    (102.946, 25.4, 154.114),
    (91.364, 25.4, 154.114),
    (76.448, 25.4, 154.114),
    (28.353, 25.4, 154.114),
    (12.141, 25.4, 154.114),
]))
fillet4.Radius = Q("0.025 in")

doc.recompute()
